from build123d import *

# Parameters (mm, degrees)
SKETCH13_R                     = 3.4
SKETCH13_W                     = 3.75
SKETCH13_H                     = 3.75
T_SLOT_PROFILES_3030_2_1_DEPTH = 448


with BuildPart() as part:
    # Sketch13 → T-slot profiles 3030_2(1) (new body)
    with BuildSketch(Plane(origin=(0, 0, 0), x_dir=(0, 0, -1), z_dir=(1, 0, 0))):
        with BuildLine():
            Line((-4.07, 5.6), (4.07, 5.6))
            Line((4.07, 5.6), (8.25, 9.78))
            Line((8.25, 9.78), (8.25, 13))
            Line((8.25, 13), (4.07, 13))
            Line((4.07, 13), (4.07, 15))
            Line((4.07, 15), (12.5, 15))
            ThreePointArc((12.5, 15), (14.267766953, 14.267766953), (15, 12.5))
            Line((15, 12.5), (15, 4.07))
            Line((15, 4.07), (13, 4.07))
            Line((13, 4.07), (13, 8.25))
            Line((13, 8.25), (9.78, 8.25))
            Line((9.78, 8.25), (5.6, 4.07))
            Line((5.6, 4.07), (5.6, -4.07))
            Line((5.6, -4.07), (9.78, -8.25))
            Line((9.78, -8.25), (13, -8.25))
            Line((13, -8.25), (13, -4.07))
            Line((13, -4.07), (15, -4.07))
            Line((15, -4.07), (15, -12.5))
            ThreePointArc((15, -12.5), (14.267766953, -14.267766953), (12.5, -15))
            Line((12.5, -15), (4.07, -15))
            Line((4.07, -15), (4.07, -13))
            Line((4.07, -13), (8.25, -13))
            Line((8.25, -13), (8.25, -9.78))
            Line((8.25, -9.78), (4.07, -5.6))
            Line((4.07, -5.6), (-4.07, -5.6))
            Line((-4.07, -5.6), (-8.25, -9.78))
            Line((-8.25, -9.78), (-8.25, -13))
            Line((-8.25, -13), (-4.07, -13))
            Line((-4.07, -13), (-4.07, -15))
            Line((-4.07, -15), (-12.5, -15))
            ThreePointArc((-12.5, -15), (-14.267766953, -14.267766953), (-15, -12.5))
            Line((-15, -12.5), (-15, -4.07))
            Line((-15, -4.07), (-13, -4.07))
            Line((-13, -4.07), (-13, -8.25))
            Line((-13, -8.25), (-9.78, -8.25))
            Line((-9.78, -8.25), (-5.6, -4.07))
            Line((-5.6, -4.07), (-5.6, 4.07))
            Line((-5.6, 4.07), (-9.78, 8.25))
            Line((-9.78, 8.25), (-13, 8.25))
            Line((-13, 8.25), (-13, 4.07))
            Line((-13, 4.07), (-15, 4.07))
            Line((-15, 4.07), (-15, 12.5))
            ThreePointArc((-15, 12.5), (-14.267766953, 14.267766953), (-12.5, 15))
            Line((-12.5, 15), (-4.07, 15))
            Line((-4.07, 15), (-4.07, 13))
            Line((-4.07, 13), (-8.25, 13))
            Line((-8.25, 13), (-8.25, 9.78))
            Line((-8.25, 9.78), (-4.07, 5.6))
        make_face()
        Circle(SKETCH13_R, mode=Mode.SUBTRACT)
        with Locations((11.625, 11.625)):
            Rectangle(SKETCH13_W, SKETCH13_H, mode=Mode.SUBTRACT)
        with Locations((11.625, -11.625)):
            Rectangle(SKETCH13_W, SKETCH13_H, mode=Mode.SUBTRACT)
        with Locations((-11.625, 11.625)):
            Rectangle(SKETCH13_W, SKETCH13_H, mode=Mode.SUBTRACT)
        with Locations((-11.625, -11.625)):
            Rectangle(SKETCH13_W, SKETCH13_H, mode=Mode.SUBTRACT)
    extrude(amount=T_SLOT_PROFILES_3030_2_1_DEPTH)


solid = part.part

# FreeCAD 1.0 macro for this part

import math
import FreeCAD as App
import Part
import Sketcher
from FreeCAD import Vector

doc = App.newDocument("Part")
body = doc.addObject("PartDesign::Body", "Body")

sketch1 = body.newObject("Sketcher::SketchObject", "Sketch")
sketch1.AttachmentSupport = (doc.getObject("YZ_Plane"), [""])
sketch1.MapMode = "FlatFace"
sketch1.addGeometry(Part.LineSegment(Vector(5.6, -4.1, 0), Vector(5.6, 4.1, 0)), False)
sketch1.addGeometry(Part.LineSegment(Vector(5.6, 4.1, 0), Vector(9.8, 8.2, 0)), False)
sketch1.addGeometry(Part.LineSegment(Vector(9.8, 8.2, 0), Vector(13, 8.2, 0)), False)
sketch1.addGeometry(Part.LineSegment(Vector(13, 8.2, 0), Vector(13, 4.1, 0)), False)
sketch1.addGeometry(Part.LineSegment(Vector(13, 4.1, 0), Vector(15, 4.1, 0)), False)
sketch1.addGeometry(Part.LineSegment(Vector(15, 4.1, 0), Vector(15, 12.5, 0)), False)
sketch1.addGeometry(Part.ArcOfCircle(Part.Circle(Vector(12.5, 12.5, 0), Vector(0, 0, 1), 2.5), math.radians(0), math.radians(90)), False)
sketch1.addGeometry(Part.LineSegment(Vector(12.5, 15, 0), Vector(4.1, 15, 0)), False)
sketch1.addGeometry(Part.LineSegment(Vector(4.1, 15, 0), Vector(4.1, 13, 0)), False)
sketch1.addGeometry(Part.LineSegment(Vector(4.1, 13, 0), Vector(8.2, 13, 0)), False)
sketch1.addGeometry(Part.LineSegment(Vector(8.2, 13, 0), Vector(8.2, 9.8, 0)), False)
sketch1.addGeometry(Part.LineSegment(Vector(8.2, 9.8, 0), Vector(4.1, 5.6, 0)), False)
sketch1.addGeometry(Part.LineSegment(Vector(4.1, 5.6, 0), Vector(-4.1, 5.6, 0)), False)
sketch1.addGeometry(Part.LineSegment(Vector(-4.1, 5.6, 0), Vector(-8.2, 9.8, 0)), False)
sketch1.addGeometry(Part.LineSegment(Vector(-8.2, 9.8, 0), Vector(-8.2, 13, 0)), False)
sketch1.addGeometry(Part.LineSegment(Vector(-8.2, 13, 0), Vector(-4.1, 13, 0)), False)
sketch1.addGeometry(Part.LineSegment(Vector(-4.1, 13, 0), Vector(-4.1, 15, 0)), False)
sketch1.addGeometry(Part.LineSegment(Vector(-4.1, 15, 0), Vector(-12.5, 15, 0)), False)
sketch1.addGeometry(Part.ArcOfCircle(Part.Circle(Vector(-12.5, 12.5, 0), Vector(0, 0, 1), 2.5), math.radians(90), math.radians(180)), False)
sketch1.addGeometry(Part.LineSegment(Vector(-15, 12.5, 0), Vector(-15, 4.1, 0)), False)
sketch1.addGeometry(Part.LineSegment(Vector(-15, 4.1, 0), Vector(-13, 4.1, 0)), False)
sketch1.addGeometry(Part.LineSegment(Vector(-13, 4.1, 0), Vector(-13, 8.2, 0)), False)
sketch1.addGeometry(Part.LineSegment(Vector(-13, 8.2, 0), Vector(-9.8, 8.2, 0)), False)
sketch1.addGeometry(Part.LineSegment(Vector(-9.8, 8.2, 0), Vector(-5.6, 4.1, 0)), False)
sketch1.addGeometry(Part.LineSegment(Vector(-5.6, 4.1, 0), Vector(-5.6, -4.1, 0)), False)
sketch1.addGeometry(Part.LineSegment(Vector(-5.6, -4.1, 0), Vector(-9.8, -8.2, 0)), False)
sketch1.addGeometry(Part.LineSegment(Vector(-9.8, -8.2, 0), Vector(-13, -8.2, 0)), False)
sketch1.addGeometry(Part.LineSegment(Vector(-13, -8.2, 0), Vector(-13, -4.1, 0)), False)
sketch1.addGeometry(Part.LineSegment(Vector(-13, -4.1, 0), Vector(-15, -4.1, 0)), False)
sketch1.addGeometry(Part.LineSegment(Vector(-15, -4.1, 0), Vector(-15, -12.5, 0)), False)
sketch1.addGeometry(Part.ArcOfCircle(Part.Circle(Vector(-12.5, -12.5, 0), Vector(0, 0, 1), 2.5), math.radians(180), math.radians(270)), False)
sketch1.addGeometry(Part.LineSegment(Vector(-12.5, -15, 0), Vector(-4.1, -15, 0)), False)
sketch1.addGeometry(Part.LineSegment(Vector(-4.1, -15, 0), Vector(-4.1, -13, 0)), False)
sketch1.addGeometry(Part.LineSegment(Vector(-4.1, -13, 0), Vector(-8.2, -13, 0)), False)
sketch1.addGeometry(Part.LineSegment(Vector(-8.2, -13, 0), Vector(-8.2, -9.8, 0)), False)
sketch1.addGeometry(Part.LineSegment(Vector(-8.2, -9.8, 0), Vector(-4.1, -5.6, 0)), False)
sketch1.addGeometry(Part.LineSegment(Vector(-4.1, -5.6, 0), Vector(4.1, -5.6, 0)), False)
sketch1.addGeometry(Part.LineSegment(Vector(4.1, -5.6, 0), Vector(8.2, -9.8, 0)), False)
sketch1.addGeometry(Part.LineSegment(Vector(8.2, -9.8, 0), Vector(8.2, -13, 0)), False)
sketch1.addGeometry(Part.LineSegment(Vector(8.2, -13, 0), Vector(4.1, -13, 0)), False)
sketch1.addGeometry(Part.LineSegment(Vector(4.1, -13, 0), Vector(4.1, -15, 0)), False)
sketch1.addGeometry(Part.LineSegment(Vector(4.1, -15, 0), Vector(12.5, -15, 0)), False)
sketch1.addGeometry(Part.ArcOfCircle(Part.Circle(Vector(12.5, -12.5, 0), Vector(0, 0, 1), 2.5), math.radians(-90), math.radians(0)), False)
sketch1.addGeometry(Part.LineSegment(Vector(15, -12.5, 0), Vector(15, -4.1, 0)), False)
sketch1.addGeometry(Part.LineSegment(Vector(15, -4.1, 0), Vector(13, -4.1, 0)), False)
sketch1.addGeometry(Part.LineSegment(Vector(13, -4.1, 0), Vector(13, -8.2, 0)), False)
sketch1.addGeometry(Part.LineSegment(Vector(13, -8.2, 0), Vector(9.8, -8.2, 0)), False)
sketch1.addGeometry(Part.LineSegment(Vector(9.8, -8.2, 0), Vector(5.6, -4.1, 0)), False)
sketch1.addGeometry(Part.LineSegment(Vector(-13.5, -9.8, 0), Vector(-9.8, -9.8, 0)), False)
sketch1.addGeometry(Part.LineSegment(Vector(-9.8, -9.8, 0), Vector(-9.8, -13.5, 0)), False)
sketch1.addGeometry(Part.LineSegment(Vector(-9.8, -13.5, 0), Vector(-13.5, -13.5, 0)), False)
sketch1.addGeometry(Part.LineSegment(Vector(-13.5, -13.5, 0), Vector(-13.5, -9.8, 0)), False)
sketch1.addGeometry(Part.LineSegment(Vector(-13.5, 13.5, 0), Vector(-9.8, 13.5, 0)), False)
sketch1.addGeometry(Part.LineSegment(Vector(-9.8, 13.5, 0), Vector(-9.8, 9.8, 0)), False)
sketch1.addGeometry(Part.LineSegment(Vector(-9.8, 9.8, 0), Vector(-13.5, 9.8, 0)), False)
sketch1.addGeometry(Part.LineSegment(Vector(-13.5, 9.8, 0), Vector(-13.5, 13.5, 0)), False)
sketch1.addGeometry(Part.LineSegment(Vector(9.8, -9.8, 0), Vector(13.5, -9.8, 0)), False)
sketch1.addGeometry(Part.LineSegment(Vector(13.5, -9.8, 0), Vector(13.5, -13.5, 0)), False)
sketch1.addGeometry(Part.LineSegment(Vector(13.5, -13.5, 0), Vector(9.8, -13.5, 0)), False)
sketch1.addGeometry(Part.LineSegment(Vector(9.8, -13.5, 0), Vector(9.8, -9.8, 0)), False)
sketch1.addGeometry(Part.Circle(Vector(0, 0, 0), Vector(0, 0, 1), 3.4), False)
sketch1.addGeometry(Part.LineSegment(Vector(9.8, 13.5, 0), Vector(13.5, 13.5, 0)), False)
sketch1.addGeometry(Part.LineSegment(Vector(13.5, 13.5, 0), Vector(13.5, 9.8, 0)), False)
sketch1.addGeometry(Part.LineSegment(Vector(13.5, 9.8, 0), Vector(9.8, 9.8, 0)), False)
sketch1.addGeometry(Part.LineSegment(Vector(9.8, 9.8, 0), Vector(9.8, 13.5, 0)), False)
sketch1.addConstraint(Sketcher.Constraint("Coincident", 0, 2, 1, 1))
sketch1.addConstraint(Sketcher.Constraint("Coincident", 1, 2, 2, 1))
sketch1.addConstraint(Sketcher.Constraint("Coincident", 2, 2, 3, 1))
sketch1.addConstraint(Sketcher.Constraint("Coincident", 3, 2, 4, 1))
sketch1.addConstraint(Sketcher.Constraint("Coincident", 4, 2, 5, 1))
sketch1.addConstraint(Sketcher.Constraint("Tangent", 5, 2, 6, 1))
sketch1.addConstraint(Sketcher.Constraint("Tangent", 6, 2, 7, 1))
sketch1.addConstraint(Sketcher.Constraint("Coincident", 7, 2, 8, 1))
sketch1.addConstraint(Sketcher.Constraint("Coincident", 8, 2, 9, 1))
sketch1.addConstraint(Sketcher.Constraint("Coincident", 9, 2, 10, 1))
sketch1.addConstraint(Sketcher.Constraint("Coincident", 10, 2, 11, 1))
sketch1.addConstraint(Sketcher.Constraint("Coincident", 11, 2, 12, 1))
sketch1.addConstraint(Sketcher.Constraint("Coincident", 12, 2, 13, 1))
sketch1.addConstraint(Sketcher.Constraint("Coincident", 13, 2, 14, 1))
sketch1.addConstraint(Sketcher.Constraint("Coincident", 14, 2, 15, 1))
sketch1.addConstraint(Sketcher.Constraint("Coincident", 15, 2, 16, 1))
sketch1.addConstraint(Sketcher.Constraint("Coincident", 16, 2, 17, 1))
sketch1.addConstraint(Sketcher.Constraint("Tangent", 17, 2, 18, 1))
sketch1.addConstraint(Sketcher.Constraint("Tangent", 18, 2, 19, 1))
sketch1.addConstraint(Sketcher.Constraint("Coincident", 19, 2, 20, 1))
sketch1.addConstraint(Sketcher.Constraint("Coincident", 20, 2, 21, 1))
sketch1.addConstraint(Sketcher.Constraint("Coincident", 21, 2, 22, 1))
sketch1.addConstraint(Sketcher.Constraint("Coincident", 22, 2, 23, 1))
sketch1.addConstraint(Sketcher.Constraint("Coincident", 23, 2, 24, 1))
sketch1.addConstraint(Sketcher.Constraint("Coincident", 24, 2, 25, 1))
sketch1.addConstraint(Sketcher.Constraint("Coincident", 25, 2, 26, 1))
sketch1.addConstraint(Sketcher.Constraint("Coincident", 26, 2, 27, 1))
sketch1.addConstraint(Sketcher.Constraint("Coincident", 27, 2, 28, 1))
sketch1.addConstraint(Sketcher.Constraint("Coincident", 28, 2, 29, 1))
sketch1.addConstraint(Sketcher.Constraint("Tangent", 29, 2, 30, 1))
sketch1.addConstraint(Sketcher.Constraint("Tangent", 30, 2, 31, 1))
sketch1.addConstraint(Sketcher.Constraint("Coincident", 31, 2, 32, 1))
sketch1.addConstraint(Sketcher.Constraint("Coincident", 32, 2, 33, 1))
sketch1.addConstraint(Sketcher.Constraint("Coincident", 33, 2, 34, 1))
sketch1.addConstraint(Sketcher.Constraint("Coincident", 34, 2, 35, 1))
sketch1.addConstraint(Sketcher.Constraint("Coincident", 35, 2, 36, 1))
sketch1.addConstraint(Sketcher.Constraint("Coincident", 36, 2, 37, 1))
sketch1.addConstraint(Sketcher.Constraint("Coincident", 37, 2, 38, 1))
sketch1.addConstraint(Sketcher.Constraint("Coincident", 38, 2, 39, 1))
sketch1.addConstraint(Sketcher.Constraint("Coincident", 39, 2, 40, 1))
sketch1.addConstraint(Sketcher.Constraint("Coincident", 40, 2, 41, 1))
sketch1.addConstraint(Sketcher.Constraint("Tangent", 41, 2, 42, 1))
sketch1.addConstraint(Sketcher.Constraint("Tangent", 42, 2, 43, 1))
sketch1.addConstraint(Sketcher.Constraint("Coincident", 43, 2, 44, 1))
sketch1.addConstraint(Sketcher.Constraint("Coincident", 44, 2, 45, 1))
sketch1.addConstraint(Sketcher.Constraint("Coincident", 45, 2, 46, 1))
sketch1.addConstraint(Sketcher.Constraint("Coincident", 46, 2, 47, 1))
sketch1.addConstraint(Sketcher.Constraint("Coincident", 47, 2, 0, 1))
sketch1.addConstraint(Sketcher.Constraint("Coincident", 48, 2, 49, 1))
sketch1.addConstraint(Sketcher.Constraint("Coincident", 49, 2, 50, 1))
sketch1.addConstraint(Sketcher.Constraint("Coincident", 50, 2, 51, 1))
sketch1.addConstraint(Sketcher.Constraint("Coincident", 51, 2, 48, 1))
sketch1.addConstraint(Sketcher.Constraint("Coincident", 52, 2, 53, 1))
sketch1.addConstraint(Sketcher.Constraint("Coincident", 53, 2, 54, 1))
sketch1.addConstraint(Sketcher.Constraint("Coincident", 54, 2, 55, 1))
sketch1.addConstraint(Sketcher.Constraint("Coincident", 55, 2, 52, 1))
sketch1.addConstraint(Sketcher.Constraint("Coincident", 56, 2, 57, 1))
sketch1.addConstraint(Sketcher.Constraint("Coincident", 57, 2, 58, 1))
sketch1.addConstraint(Sketcher.Constraint("Coincident", 58, 2, 59, 1))
sketch1.addConstraint(Sketcher.Constraint("Coincident", 59, 2, 56, 1))
sketch1.addConstraint(Sketcher.Constraint("Coincident", 61, 2, 62, 1))
sketch1.addConstraint(Sketcher.Constraint("Coincident", 62, 2, 63, 1))
sketch1.addConstraint(Sketcher.Constraint("Coincident", 63, 2, 64, 1))
sketch1.addConstraint(Sketcher.Constraint("Coincident", 64, 2, 61, 1))
sketch1.addConstraint(Sketcher.Constraint("Vertical", 0))
sketch1.addConstraint(Sketcher.Constraint("Horizontal", 2))
sketch1.addConstraint(Sketcher.Constraint("Vertical", 3))
sketch1.addConstraint(Sketcher.Constraint("Horizontal", 4))
sketch1.addConstraint(Sketcher.Constraint("Vertical", 5))
sketch1.addConstraint(Sketcher.Constraint("Horizontal", 7))
sketch1.addConstraint(Sketcher.Constraint("Vertical", 8))
sketch1.addConstraint(Sketcher.Constraint("Horizontal", 9))
sketch1.addConstraint(Sketcher.Constraint("Vertical", 10))
sketch1.addConstraint(Sketcher.Constraint("Horizontal", 12))
sketch1.addConstraint(Sketcher.Constraint("Vertical", 14))
sketch1.addConstraint(Sketcher.Constraint("Horizontal", 15))
sketch1.addConstraint(Sketcher.Constraint("Vertical", 16))
sketch1.addConstraint(Sketcher.Constraint("Horizontal", 17))
sketch1.addConstraint(Sketcher.Constraint("Vertical", 19))
sketch1.addConstraint(Sketcher.Constraint("Horizontal", 20))
sketch1.addConstraint(Sketcher.Constraint("Vertical", 21))
sketch1.addConstraint(Sketcher.Constraint("Horizontal", 22))
sketch1.addConstraint(Sketcher.Constraint("Vertical", 24))
sketch1.addConstraint(Sketcher.Constraint("Horizontal", 26))
sketch1.addConstraint(Sketcher.Constraint("Vertical", 27))
sketch1.addConstraint(Sketcher.Constraint("Horizontal", 28))
sketch1.addConstraint(Sketcher.Constraint("Vertical", 29))
sketch1.addConstraint(Sketcher.Constraint("Horizontal", 31))
sketch1.addConstraint(Sketcher.Constraint("Vertical", 32))
sketch1.addConstraint(Sketcher.Constraint("Horizontal", 33))
sketch1.addConstraint(Sketcher.Constraint("Vertical", 34))
sketch1.addConstraint(Sketcher.Constraint("Horizontal", 36))
sketch1.addConstraint(Sketcher.Constraint("Vertical", 38))
sketch1.addConstraint(Sketcher.Constraint("Horizontal", 39))
sketch1.addConstraint(Sketcher.Constraint("Vertical", 40))
sketch1.addConstraint(Sketcher.Constraint("Horizontal", 41))
sketch1.addConstraint(Sketcher.Constraint("Vertical", 43))
sketch1.addConstraint(Sketcher.Constraint("Horizontal", 44))
sketch1.addConstraint(Sketcher.Constraint("Vertical", 45))
sketch1.addConstraint(Sketcher.Constraint("Horizontal", 46))
sketch1.addConstraint(Sketcher.Constraint("Horizontal", 48))
sketch1.addConstraint(Sketcher.Constraint("Vertical", 49))
sketch1.addConstraint(Sketcher.Constraint("Horizontal", 50))
sketch1.addConstraint(Sketcher.Constraint("Vertical", 51))
sketch1.addConstraint(Sketcher.Constraint("Horizontal", 52))
sketch1.addConstraint(Sketcher.Constraint("Vertical", 53))
sketch1.addConstraint(Sketcher.Constraint("Horizontal", 54))
sketch1.addConstraint(Sketcher.Constraint("Vertical", 55))
sketch1.addConstraint(Sketcher.Constraint("Horizontal", 56))
sketch1.addConstraint(Sketcher.Constraint("Vertical", 57))
sketch1.addConstraint(Sketcher.Constraint("Horizontal", 58))
sketch1.addConstraint(Sketcher.Constraint("Vertical", 59))
sketch1.addConstraint(Sketcher.Constraint("Horizontal", 61))
sketch1.addConstraint(Sketcher.Constraint("Vertical", 62))
sketch1.addConstraint(Sketcher.Constraint("Horizontal", 63))
sketch1.addConstraint(Sketcher.Constraint("Vertical", 64))
sketch1.addConstraint(Sketcher.Constraint("Coincident", 60, 3, -1, 1))
sketch1.addConstraint(Sketcher.Constraint("Equal", 6, 18))
sketch1.addConstraint(Sketcher.Constraint("Equal", 18, 30))
sketch1.addConstraint(Sketcher.Constraint("Equal", 30, 42))
sketch1.addConstraint(Sketcher.Constraint("Symmetric", 6, 3, 30, 3, -1, 1))
sketch1.addConstraint(Sketcher.Constraint("Symmetric", 18, 3, 42, 3, -1, 1))
sketch1.addConstraint(Sketcher.Constraint("Symmetric", 0, 2, 24, 2, -1, 1))
sketch1.addConstraint(Sketcher.Constraint("Symmetric", 1, 2, 25, 2, -1, 1))
sketch1.addConstraint(Sketcher.Constraint("Symmetric", 3, 2, 27, 2, -1, 1))
sketch1.addConstraint(Sketcher.Constraint("Symmetric", 8, 2, 32, 2, -1, 1))
sketch1.addConstraint(Sketcher.Constraint("Symmetric", 10, 2, 34, 2, -1, 1))
sketch1.addConstraint(Sketcher.Constraint("Symmetric", 11, 2, 35, 2, -1, 1))
sketch1.addConstraint(Sketcher.Constraint("Symmetric", 13, 2, 37, 2, -1, 1))
sketch1.addConstraint(Sketcher.Constraint("Symmetric", 15, 2, 39, 2, -1, 1))
sketch1.addConstraint(Sketcher.Constraint("Symmetric", 20, 2, 44, 2, -1, 1))
sketch1.addConstraint(Sketcher.Constraint("Symmetric", 22, 2, 46, 2, -1, 1))
sketch1.addConstraint(Sketcher.Constraint("Symmetric", 54, 2, 56, 2, -1, 1))
sketch1.addConstraint(Sketcher.Constraint("Symmetric", 52, 2, 58, 2, -1, 1))
sketch1.addConstraint(Sketcher.Constraint("Symmetric", 50, 2, 61, 2, -1, 1))
sketch1.addConstraint(Sketcher.Constraint("Symmetric", 48, 2, 63, 2, -1, 1))
sketch1.addConstraint(Sketcher.Constraint("Symmetric", 6, 3, 18, 3, -2))
sketch1.addConstraint(Sketcher.Constraint("Symmetric", 10, 2, 13, 2, -2))
sketch1.addConstraint(Sketcher.Constraint("Symmetric", 8, 2, 15, 2, -2))
sketch1.addConstraint(Sketcher.Constraint("Symmetric", 3, 2, 20, 2, -2))
sketch1.addConstraint(Sketcher.Constraint("Symmetric", 1, 2, 22, 2, -2))
sketch1.addConstraint(Sketcher.Constraint("Symmetric", 51, 2, 56, 2, -2))
sketch1.addConstraint(Sketcher.Constraint("Symmetric", 49, 2, 58, 2, -2))
sketch1.addConstraint(Sketcher.Constraint("Parallel", 1, 11))
sketch1.addConstraint(Sketcher.Constraint("Perpendicular", 11, 13))
sketch1.addConstraint(Sketcher.Constraint("Parallel", 13, 23))
sketch1.addConstraint(Sketcher.Constraint("Perpendicular", 35, 37))
sketch1.addConstraint(Sketcher.Constraint("Parallel", 37, 47))
sketch1.addConstraint(Sketcher.Constraint("Horizontal", 0, 2, 3, 2))
sketch1.addConstraint(Sketcher.Constraint("Horizontal", 20, 2, 23, 2))
sketch1.addConstraint(Sketcher.Constraint("Vertical", 8, 2, 11, 2))
sketch1.addConstraint(Sketcher.Constraint("Equal", 36, 0))
sketch1.addConstraint(Sketcher.Constraint("Equal", 39, 3))
sketch1.addConstraint(Sketcher.Constraint("Equal", 41, 5))
sketch1.addConstraint(Sketcher.Constraint("Equal", 44, 8))
sketch1.addConstraint(Sketcher.Constraint("Equal", 46, 10))
sketch1.addConstraint(Sketcher.Constraint("Equal", 63, 49))
sketch1.addConstraint(Sketcher.Constraint("Diameter", 60, 6.8))
sketch1.addConstraint(Sketcher.Constraint("Radius", 6, 2.5))
sketch1.addConstraint(Sketcher.Constraint("DistanceX", 4, 1, 4, 2, 2.0))
sketch1.addConstraint(Sketcher.Constraint("DistanceX", -1, 1, 2, 2, 13.0))
sketch1.addConstraint(Sketcher.Constraint("DistanceX", 2, 1, 2, 2, 3.22))
sketch1.addConstraint(Sketcher.Constraint("DistanceX", 7, 2, 7, 1, 8.43))
sketch1.addConstraint(Sketcher.Constraint("DistanceX", 9, 1, 9, 2, 4.18))
sketch1.addConstraint(Sketcher.Constraint("DistanceX", 48, 1, 48, 2, 3.75))
sketch1.addConstraint(Sketcher.Constraint("DistanceY", 49, 2, -1, 1, 13.5))
sketch1.addConstraint(Sketcher.Constraint("DistanceX", 50, 2, -1, 1, 13.5))
pad1 = body.newObject("PartDesign::Pad", "Pad")
pad1.Profile = sketch1
pad1.Length = 448

doc.recompute()
